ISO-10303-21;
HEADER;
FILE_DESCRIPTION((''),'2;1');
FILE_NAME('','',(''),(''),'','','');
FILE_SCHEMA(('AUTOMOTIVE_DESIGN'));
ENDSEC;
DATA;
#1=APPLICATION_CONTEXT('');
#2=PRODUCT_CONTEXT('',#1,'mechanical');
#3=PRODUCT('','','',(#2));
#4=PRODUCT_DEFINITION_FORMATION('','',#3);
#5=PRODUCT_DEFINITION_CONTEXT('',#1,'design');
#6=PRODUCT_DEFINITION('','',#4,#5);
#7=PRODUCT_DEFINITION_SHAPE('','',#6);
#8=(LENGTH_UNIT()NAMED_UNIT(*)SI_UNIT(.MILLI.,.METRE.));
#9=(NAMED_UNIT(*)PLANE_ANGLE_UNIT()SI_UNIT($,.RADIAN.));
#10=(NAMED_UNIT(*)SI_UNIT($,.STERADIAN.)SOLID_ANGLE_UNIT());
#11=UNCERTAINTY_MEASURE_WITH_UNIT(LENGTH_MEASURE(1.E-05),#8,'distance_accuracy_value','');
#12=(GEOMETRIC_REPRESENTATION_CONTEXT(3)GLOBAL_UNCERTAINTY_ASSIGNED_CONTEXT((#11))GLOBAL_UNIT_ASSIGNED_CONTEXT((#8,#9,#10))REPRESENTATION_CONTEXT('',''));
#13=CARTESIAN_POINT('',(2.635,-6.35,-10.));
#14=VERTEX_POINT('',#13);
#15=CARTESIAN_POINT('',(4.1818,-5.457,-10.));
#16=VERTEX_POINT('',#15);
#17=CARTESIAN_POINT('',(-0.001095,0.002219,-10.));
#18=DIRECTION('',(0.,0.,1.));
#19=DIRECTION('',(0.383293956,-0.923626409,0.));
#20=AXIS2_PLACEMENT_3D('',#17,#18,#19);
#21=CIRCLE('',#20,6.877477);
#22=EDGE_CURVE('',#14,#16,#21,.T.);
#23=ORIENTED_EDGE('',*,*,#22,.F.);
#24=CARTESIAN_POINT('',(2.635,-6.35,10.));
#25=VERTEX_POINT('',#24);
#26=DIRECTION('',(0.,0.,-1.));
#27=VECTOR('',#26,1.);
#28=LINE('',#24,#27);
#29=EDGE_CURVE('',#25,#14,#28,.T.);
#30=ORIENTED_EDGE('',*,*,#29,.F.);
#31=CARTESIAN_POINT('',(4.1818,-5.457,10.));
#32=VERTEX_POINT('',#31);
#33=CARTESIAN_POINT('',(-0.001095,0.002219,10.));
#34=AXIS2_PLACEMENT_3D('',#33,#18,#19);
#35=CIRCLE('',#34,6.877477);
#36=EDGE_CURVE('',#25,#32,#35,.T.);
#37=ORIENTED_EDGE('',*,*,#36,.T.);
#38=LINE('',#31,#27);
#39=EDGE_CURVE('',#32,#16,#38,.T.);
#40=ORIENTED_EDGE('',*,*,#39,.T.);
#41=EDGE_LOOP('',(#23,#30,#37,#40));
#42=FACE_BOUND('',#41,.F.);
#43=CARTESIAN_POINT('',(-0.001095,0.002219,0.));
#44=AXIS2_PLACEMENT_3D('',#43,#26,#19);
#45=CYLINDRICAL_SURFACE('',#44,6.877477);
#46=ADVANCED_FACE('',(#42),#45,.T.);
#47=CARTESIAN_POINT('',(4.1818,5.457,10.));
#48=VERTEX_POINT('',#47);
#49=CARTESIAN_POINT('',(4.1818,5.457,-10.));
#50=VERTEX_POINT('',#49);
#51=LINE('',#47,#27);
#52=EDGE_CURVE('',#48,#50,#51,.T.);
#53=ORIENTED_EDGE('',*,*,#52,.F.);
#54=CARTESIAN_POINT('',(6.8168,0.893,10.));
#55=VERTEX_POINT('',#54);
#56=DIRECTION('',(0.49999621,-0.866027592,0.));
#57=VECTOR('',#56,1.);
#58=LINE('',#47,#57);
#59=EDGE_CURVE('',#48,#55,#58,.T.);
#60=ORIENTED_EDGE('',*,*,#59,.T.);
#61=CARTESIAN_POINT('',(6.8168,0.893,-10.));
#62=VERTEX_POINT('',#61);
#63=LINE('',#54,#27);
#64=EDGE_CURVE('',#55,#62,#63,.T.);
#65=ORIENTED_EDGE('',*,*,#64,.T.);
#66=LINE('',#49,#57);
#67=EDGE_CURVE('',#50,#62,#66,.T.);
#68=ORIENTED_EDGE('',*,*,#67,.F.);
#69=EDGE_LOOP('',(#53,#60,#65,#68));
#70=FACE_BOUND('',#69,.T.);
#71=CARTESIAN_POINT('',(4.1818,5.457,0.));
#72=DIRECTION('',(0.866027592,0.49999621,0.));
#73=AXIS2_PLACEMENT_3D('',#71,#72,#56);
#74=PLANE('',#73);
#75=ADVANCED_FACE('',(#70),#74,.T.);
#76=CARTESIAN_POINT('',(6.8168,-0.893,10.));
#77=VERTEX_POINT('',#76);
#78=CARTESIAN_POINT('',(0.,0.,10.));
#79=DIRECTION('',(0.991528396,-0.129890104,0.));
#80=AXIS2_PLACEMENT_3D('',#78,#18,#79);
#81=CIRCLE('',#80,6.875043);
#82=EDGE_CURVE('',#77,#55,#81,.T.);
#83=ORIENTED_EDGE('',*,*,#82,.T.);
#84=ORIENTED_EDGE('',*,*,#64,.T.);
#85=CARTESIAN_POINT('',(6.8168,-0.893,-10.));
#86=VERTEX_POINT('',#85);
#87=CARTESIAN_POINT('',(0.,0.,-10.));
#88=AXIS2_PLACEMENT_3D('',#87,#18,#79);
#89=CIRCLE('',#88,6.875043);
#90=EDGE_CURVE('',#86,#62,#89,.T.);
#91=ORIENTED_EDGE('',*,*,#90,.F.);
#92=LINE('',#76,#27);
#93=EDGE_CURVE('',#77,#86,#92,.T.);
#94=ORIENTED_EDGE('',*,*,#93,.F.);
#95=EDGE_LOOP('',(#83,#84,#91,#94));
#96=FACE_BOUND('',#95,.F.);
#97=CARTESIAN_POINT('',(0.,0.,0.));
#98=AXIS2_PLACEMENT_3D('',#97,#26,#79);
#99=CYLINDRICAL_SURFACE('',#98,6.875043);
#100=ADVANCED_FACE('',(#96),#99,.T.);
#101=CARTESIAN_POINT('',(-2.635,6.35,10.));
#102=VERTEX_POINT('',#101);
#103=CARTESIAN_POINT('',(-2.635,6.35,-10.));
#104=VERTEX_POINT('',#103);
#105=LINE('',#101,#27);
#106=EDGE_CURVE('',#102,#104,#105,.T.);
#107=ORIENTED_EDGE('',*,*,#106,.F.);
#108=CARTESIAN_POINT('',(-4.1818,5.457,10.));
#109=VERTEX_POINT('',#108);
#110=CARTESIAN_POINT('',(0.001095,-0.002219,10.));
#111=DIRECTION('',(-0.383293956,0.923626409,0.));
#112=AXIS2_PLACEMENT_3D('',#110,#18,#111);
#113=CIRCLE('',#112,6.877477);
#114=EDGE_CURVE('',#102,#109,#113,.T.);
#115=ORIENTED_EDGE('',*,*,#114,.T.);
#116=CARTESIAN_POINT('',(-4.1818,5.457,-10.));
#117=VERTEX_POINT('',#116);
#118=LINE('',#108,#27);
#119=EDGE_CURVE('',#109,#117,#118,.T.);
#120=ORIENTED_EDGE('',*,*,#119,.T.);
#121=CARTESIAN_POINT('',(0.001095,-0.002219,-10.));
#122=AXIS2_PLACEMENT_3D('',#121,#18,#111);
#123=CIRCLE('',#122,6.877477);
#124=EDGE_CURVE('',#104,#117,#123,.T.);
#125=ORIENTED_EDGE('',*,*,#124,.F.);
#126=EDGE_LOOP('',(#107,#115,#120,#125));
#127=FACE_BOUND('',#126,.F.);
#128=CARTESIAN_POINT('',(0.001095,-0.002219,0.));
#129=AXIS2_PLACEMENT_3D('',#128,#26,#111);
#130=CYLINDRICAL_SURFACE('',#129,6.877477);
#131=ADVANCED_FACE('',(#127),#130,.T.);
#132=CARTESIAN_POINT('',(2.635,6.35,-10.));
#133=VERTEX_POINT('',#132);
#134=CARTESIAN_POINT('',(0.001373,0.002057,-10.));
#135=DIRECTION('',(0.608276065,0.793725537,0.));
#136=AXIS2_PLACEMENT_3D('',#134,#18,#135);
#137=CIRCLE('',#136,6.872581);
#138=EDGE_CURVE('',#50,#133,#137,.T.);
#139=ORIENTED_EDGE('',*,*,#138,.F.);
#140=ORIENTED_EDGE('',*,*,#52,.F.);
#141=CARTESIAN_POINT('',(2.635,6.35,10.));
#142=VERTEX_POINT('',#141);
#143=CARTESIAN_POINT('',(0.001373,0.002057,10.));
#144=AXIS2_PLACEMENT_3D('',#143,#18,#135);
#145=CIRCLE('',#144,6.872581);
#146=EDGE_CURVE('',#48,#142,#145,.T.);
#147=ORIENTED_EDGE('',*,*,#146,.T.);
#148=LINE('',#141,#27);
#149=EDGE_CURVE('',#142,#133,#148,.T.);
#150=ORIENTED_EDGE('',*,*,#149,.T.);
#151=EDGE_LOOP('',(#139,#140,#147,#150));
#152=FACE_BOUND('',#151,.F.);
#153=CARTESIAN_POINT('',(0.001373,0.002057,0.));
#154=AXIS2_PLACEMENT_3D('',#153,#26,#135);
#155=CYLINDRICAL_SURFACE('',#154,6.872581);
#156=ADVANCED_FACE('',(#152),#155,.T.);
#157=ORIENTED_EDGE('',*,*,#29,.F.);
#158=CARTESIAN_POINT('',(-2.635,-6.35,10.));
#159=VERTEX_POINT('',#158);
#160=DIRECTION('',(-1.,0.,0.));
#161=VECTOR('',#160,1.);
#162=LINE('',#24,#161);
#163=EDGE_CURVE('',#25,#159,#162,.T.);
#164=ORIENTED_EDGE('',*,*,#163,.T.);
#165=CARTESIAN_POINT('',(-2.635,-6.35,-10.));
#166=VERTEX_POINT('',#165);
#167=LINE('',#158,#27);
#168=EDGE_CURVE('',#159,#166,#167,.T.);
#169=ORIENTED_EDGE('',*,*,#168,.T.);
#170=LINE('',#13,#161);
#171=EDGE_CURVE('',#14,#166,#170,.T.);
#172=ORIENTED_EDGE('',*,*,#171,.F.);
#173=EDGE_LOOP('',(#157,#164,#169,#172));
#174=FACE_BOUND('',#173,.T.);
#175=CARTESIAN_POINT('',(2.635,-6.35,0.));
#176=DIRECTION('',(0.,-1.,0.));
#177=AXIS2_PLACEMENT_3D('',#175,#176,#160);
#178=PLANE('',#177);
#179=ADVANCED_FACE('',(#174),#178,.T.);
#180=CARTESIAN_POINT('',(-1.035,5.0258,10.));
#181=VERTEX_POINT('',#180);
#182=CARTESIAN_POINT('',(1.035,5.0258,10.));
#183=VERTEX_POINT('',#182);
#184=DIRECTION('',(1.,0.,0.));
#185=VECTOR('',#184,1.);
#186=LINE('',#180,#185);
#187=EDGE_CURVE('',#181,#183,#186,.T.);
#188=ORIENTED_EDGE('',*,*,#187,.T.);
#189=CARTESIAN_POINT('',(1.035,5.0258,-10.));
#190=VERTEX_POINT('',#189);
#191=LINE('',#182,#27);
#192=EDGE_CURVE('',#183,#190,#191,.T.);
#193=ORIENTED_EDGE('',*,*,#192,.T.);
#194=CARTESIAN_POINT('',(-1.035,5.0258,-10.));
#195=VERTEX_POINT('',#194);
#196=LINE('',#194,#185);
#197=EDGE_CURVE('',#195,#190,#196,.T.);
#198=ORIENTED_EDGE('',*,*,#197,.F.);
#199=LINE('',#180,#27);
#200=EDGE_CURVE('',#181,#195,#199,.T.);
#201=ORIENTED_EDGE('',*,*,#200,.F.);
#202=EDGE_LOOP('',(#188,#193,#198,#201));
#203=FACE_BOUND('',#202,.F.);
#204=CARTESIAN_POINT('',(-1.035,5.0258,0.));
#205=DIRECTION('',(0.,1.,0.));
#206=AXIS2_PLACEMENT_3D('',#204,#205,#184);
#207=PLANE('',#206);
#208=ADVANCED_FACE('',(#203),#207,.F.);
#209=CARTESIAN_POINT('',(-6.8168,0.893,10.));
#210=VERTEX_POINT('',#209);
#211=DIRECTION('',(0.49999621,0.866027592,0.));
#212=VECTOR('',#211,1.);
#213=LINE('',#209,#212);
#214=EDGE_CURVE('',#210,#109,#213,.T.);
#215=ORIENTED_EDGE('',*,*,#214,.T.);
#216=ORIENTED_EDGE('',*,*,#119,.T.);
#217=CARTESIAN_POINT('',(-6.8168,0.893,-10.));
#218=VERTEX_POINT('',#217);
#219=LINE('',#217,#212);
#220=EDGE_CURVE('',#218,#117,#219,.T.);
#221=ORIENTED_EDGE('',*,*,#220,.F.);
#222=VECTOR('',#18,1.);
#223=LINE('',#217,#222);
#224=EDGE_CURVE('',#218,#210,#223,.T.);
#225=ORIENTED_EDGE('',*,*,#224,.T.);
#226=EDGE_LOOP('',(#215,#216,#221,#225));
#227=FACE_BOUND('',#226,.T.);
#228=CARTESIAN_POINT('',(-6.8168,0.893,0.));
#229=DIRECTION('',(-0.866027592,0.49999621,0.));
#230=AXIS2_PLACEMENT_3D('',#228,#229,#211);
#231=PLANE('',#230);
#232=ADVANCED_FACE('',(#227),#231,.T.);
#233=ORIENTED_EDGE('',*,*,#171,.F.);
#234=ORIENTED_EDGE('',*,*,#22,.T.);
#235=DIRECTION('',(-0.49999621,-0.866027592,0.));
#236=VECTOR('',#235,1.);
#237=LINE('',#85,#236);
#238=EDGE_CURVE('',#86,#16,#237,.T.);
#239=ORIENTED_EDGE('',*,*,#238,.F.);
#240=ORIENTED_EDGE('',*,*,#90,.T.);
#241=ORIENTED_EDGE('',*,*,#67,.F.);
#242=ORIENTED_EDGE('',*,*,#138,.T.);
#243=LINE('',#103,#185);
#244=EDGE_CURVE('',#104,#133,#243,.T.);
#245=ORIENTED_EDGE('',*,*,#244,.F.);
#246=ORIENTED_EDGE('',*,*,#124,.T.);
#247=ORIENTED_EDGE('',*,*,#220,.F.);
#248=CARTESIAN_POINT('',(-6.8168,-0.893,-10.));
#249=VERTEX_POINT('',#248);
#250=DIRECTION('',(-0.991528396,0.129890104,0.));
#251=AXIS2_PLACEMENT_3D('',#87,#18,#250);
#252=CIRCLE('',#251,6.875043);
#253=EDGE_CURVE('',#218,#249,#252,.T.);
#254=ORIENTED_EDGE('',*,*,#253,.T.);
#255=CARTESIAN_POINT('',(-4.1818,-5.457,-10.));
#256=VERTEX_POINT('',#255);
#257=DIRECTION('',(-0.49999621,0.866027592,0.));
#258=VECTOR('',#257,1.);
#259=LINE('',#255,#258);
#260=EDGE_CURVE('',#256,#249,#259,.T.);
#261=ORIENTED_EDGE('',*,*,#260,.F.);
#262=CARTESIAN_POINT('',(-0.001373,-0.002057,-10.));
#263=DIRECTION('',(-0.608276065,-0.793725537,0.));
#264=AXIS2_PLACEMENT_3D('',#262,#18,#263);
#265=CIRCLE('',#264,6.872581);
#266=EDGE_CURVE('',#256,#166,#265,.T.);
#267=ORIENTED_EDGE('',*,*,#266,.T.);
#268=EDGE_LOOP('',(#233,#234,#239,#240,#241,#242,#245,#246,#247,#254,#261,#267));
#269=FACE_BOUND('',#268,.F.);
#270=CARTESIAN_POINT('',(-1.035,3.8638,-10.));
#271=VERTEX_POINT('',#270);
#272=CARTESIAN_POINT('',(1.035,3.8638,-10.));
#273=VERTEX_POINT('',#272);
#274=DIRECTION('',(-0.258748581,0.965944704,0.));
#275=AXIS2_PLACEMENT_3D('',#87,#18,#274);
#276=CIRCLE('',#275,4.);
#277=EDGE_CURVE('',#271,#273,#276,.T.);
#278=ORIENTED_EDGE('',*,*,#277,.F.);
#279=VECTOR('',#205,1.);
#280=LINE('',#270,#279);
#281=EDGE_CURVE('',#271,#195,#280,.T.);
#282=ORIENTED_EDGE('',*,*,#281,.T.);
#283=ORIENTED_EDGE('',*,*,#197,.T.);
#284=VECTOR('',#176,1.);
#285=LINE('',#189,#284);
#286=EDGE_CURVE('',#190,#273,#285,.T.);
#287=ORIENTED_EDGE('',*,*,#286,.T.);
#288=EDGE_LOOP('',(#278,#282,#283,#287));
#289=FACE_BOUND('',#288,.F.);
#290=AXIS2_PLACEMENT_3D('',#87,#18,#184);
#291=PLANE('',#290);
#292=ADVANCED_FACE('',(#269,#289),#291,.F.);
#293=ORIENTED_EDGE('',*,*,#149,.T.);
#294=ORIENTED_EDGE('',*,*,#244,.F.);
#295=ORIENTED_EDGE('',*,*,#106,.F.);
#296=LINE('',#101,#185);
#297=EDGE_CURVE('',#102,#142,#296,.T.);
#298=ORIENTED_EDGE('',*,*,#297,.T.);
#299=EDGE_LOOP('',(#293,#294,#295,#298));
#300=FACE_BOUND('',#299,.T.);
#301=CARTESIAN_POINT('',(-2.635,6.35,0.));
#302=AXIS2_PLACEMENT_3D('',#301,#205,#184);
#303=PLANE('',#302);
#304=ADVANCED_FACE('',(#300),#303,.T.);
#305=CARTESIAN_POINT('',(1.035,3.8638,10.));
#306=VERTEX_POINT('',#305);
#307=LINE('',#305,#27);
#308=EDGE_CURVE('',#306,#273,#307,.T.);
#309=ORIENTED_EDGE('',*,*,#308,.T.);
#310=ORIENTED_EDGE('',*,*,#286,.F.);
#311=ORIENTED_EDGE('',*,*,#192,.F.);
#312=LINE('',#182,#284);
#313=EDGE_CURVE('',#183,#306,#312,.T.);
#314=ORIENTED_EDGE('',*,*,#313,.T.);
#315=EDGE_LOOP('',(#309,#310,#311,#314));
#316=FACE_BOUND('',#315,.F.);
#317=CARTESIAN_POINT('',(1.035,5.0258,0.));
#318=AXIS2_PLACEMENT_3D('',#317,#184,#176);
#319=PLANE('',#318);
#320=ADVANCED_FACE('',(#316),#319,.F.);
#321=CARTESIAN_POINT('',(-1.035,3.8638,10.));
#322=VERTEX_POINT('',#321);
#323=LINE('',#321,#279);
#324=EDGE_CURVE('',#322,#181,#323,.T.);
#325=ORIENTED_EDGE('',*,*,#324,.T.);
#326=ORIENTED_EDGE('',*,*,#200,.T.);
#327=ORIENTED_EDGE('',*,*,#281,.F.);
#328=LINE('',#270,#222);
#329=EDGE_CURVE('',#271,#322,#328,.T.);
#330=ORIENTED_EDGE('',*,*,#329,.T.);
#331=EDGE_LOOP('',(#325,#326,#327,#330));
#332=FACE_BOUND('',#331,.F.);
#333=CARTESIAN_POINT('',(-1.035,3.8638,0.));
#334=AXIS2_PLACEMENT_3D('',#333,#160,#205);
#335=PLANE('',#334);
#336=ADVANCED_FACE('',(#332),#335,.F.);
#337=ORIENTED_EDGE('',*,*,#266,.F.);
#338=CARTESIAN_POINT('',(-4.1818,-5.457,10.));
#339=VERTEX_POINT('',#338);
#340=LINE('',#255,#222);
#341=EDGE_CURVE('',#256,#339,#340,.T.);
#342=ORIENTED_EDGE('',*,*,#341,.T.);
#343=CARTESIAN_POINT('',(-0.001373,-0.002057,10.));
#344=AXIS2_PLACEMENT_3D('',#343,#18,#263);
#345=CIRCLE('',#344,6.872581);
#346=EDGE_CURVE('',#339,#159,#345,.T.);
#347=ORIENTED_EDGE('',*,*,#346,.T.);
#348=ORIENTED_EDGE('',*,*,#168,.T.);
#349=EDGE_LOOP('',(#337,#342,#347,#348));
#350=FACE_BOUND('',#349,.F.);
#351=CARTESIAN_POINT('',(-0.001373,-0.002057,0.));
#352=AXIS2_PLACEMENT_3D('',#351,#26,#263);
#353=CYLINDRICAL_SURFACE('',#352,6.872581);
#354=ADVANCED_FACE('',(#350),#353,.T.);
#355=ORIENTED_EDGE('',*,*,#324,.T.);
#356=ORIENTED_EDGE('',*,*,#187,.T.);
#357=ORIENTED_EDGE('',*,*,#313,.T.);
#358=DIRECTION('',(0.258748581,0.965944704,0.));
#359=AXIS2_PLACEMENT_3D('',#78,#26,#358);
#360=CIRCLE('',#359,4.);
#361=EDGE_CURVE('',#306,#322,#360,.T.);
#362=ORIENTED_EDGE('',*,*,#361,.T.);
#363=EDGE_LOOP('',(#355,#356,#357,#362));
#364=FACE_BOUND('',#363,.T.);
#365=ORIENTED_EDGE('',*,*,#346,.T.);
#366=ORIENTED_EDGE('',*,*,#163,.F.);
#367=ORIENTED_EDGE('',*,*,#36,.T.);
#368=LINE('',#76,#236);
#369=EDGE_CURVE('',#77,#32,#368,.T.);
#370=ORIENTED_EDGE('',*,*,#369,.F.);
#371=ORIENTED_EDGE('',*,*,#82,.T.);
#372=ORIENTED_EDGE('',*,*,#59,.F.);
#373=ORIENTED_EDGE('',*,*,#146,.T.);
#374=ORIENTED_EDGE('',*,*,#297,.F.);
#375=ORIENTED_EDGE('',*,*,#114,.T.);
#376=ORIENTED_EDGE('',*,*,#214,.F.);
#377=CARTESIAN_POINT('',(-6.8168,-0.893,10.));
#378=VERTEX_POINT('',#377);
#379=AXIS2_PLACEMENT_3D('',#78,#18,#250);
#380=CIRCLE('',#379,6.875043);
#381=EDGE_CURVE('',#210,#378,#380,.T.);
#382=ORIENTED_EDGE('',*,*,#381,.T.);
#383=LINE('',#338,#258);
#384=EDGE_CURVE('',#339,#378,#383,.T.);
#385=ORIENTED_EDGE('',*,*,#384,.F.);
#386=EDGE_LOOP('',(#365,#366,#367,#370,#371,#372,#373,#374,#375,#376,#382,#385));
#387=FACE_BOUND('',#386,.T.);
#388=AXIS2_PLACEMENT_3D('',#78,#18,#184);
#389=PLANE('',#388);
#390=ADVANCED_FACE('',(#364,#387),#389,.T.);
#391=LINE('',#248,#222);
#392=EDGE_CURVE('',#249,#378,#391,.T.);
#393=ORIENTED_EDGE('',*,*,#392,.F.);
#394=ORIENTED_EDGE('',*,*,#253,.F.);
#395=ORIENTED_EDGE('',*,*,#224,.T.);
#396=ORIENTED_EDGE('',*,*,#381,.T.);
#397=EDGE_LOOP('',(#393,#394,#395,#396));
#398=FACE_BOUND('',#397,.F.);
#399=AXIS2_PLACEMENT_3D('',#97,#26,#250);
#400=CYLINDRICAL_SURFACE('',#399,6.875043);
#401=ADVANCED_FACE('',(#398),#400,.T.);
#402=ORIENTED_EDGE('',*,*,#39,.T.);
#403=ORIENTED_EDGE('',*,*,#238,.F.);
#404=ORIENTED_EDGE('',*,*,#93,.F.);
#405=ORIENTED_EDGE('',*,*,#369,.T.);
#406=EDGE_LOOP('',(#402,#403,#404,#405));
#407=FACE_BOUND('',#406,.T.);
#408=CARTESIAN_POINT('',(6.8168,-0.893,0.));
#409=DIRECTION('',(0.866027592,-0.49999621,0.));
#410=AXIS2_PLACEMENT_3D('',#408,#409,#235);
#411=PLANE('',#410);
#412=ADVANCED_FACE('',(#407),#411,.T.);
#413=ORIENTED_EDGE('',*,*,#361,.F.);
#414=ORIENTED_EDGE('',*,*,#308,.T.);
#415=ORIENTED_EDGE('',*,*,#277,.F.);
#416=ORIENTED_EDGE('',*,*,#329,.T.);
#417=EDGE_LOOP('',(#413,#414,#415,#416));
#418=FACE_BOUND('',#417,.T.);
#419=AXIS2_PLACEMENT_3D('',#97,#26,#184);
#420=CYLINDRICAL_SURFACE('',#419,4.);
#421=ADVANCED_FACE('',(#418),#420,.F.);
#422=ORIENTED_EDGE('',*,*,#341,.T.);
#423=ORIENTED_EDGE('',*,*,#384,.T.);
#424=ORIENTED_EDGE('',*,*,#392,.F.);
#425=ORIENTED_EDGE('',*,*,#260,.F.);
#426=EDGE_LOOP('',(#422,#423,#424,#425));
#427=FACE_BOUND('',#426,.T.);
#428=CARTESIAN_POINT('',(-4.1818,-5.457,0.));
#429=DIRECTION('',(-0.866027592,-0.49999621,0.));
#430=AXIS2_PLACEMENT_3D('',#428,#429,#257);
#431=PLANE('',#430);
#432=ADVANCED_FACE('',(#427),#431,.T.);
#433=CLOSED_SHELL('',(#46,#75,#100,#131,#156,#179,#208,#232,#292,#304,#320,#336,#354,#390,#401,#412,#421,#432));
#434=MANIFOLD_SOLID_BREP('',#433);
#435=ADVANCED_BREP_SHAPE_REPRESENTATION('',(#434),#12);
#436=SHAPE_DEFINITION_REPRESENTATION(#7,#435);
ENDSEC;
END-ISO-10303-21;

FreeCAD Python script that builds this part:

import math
import FreeCAD as App
import Part
import Sketcher

V = App.Vector
Q = App.Units.Quantity

doc = App.newDocument("Part")
body = doc.addObject("PartDesign::Body", "Body")

# Sketch on XY plane
sketch1 = body.newObject("Sketcher::SketchObject", "Sketch")
sketch1.AttachmentSupport = (doc.getObject("XY_Plane"), [""])
sketch1.MapMode = "FlatFace"
sketch1.addGeometry([
    Part.LineSegment(V(-4.1818, 5.457, 0), V(-6.8168, 0.893, 0)),  # 0
    Part.ArcOfCircle(Part.Circle(V(0, 0, 0), V(0, 0, 1), 6.875043), math.radians(172.536758), math.radians(187.463242)),  # 1
    Part.LineSegment(V(-6.8168, -0.893, 0), V(-4.1818, -5.457, 0)),  # 2
    Part.ArcOfCircle(Part.Circle(V(-0.001373, -0.002057, 0), V(0, 0, 1), 6.872581), math.radians(-127.464955), math.radians(-112.532522)),  # 3
    Part.LineSegment(V(-2.635, -6.35, 0), V(2.635, -6.35, 0)),  # 4
    Part.ArcOfCircle(Part.Circle(V(-0.001095, 0.002219, 0), V(0, 0, 1), 6.877477), math.radians(-67.462132), math.radians(-52.54039)),  # 5
    Part.LineSegment(V(4.1818, -5.457, 0), V(6.8168, -0.893, 0)),  # 6
    Part.ArcOfCircle(Part.Circle(V(0, 0, 0), V(0, 0, 1), 6.875043), math.radians(-7.463242), math.radians(7.463242)),  # 7
    Part.LineSegment(V(6.8168, 0.893, 0), V(4.1818, 5.457, 0)),  # 8
    Part.ArcOfCircle(Part.Circle(V(0.001373, 0.002057, 0), V(0, 0, 1), 6.872581), math.radians(52.535045), math.radians(67.467478)),  # 9
    Part.LineSegment(V(2.635, 6.35, 0), V(-2.635, 6.35, 0)),  # 10
    Part.ArcOfCircle(Part.Circle(V(0.001095, -0.002219, 0), V(0, 0, 1), 6.877477), math.radians(112.537868), math.radians(127.45961)),  # 11
    Part.ArcOfCircle(Part.Circle(V(0, 0, 0), V(0, 0, 1), 4), math.radians(104.99582), math.radians(435.00418)),  # 12
    Part.LineSegment(V(-1.035, 3.8638, 0), V(-1.035, 5.0258, 0)),  # 13
    Part.LineSegment(V(-1.035, 5.0258, 0), V(1.035, 5.0258, 0)),  # 14
    Part.LineSegment(V(1.035, 5.0258, 0), V(1.035, 3.8638, 0)),  # 15
], False)
sketch1.addConstraint([
    Sketcher.Constraint("Coincident", 0, 2, 1, 1),
    Sketcher.Constraint("Coincident", 1, 2, 2, 1),
    Sketcher.Constraint("Coincident", 2, 2, 3, 1),
    Sketcher.Constraint("Coincident", 3, 2, 4, 1),
    Sketcher.Constraint("Coincident", 4, 2, 5, 1),
    Sketcher.Constraint("Coincident", 5, 2, 6, 1),
    Sketcher.Constraint("Coincident", 6, 2, 7, 1),
    Sketcher.Constraint("Coincident", 7, 2, 8, 1),
    Sketcher.Constraint("Coincident", 8, 2, 9, 1),
    Sketcher.Constraint("Coincident", 9, 2, 10, 1),
    Sketcher.Constraint("Coincident", 10, 2, 11, 1),
    Sketcher.Constraint("Coincident", 11, 2, 0, 1),
    Sketcher.Constraint("Coincident", 12, 1, 13, 1),
    Sketcher.Constraint("Coincident", 13, 2, 14, 1),
    Sketcher.Constraint("Coincident", 14, 2, 15, 1),
    Sketcher.Constraint("Coincident", 15, 2, 12, 2),
    Sketcher.Constraint("Horizontal", 4),
    Sketcher.Constraint("Horizontal", 10),
    Sketcher.Constraint("Vertical", 13),
    Sketcher.Constraint("Horizontal", 14),
    Sketcher.Constraint("Vertical", 15),
    Sketcher.Constraint("Coincident", 1, 3, -1, 1),
    Sketcher.Constraint("Coincident", 7, 3, -1, 1),
    Sketcher.Constraint("Coincident", 12, 3, -1, 1),
    Sketcher.Constraint("Equal", 1, 7),
    Sketcher.Constraint("Equal", 3, 9),
    Sketcher.Constraint("Equal", 5, 11),
    Sketcher.Constraint("Symmetric", 3, 3, 9, 3, -1, 1),
    Sketcher.Constraint("Symmetric", 5, 3, 11, 3, -1, 1),
    Sketcher.Constraint("Symmetric", 5, 3, 9, 3, -2),
    Sketcher.Constraint("Symmetric", 2, 2, 5, 2, -2),
    Sketcher.Constraint("Symmetric", 4, 2, 9, 2, -1),
    Sketcher.Constraint("Parallel", 0, 6),
    Sketcher.Constraint("Parallel", 2, 8),
    Sketcher.Constraint("Horizontal", 1, 2, 6, 2),
    Sketcher.Constraint("Horizontal", 0, 2, 7, 2),
    Sketcher.Constraint("Horizontal", 12, 1, 15, 2),
    Sketcher.Constraint("Vertical", 0, 2, 1, 2),
    Sketcher.Constraint("Radius", 12, Q("4 mm")),
    Sketcher.Constraint("Radius", 1, Q("6.875 mm")),
    Sketcher.Constraint("DistanceX", 14, 1, 14, 2, Q("2.07 mm")),
    Sketcher.Constraint("DistanceY", 13, 1, 13, 2, Q("1.162 mm")),
    Sketcher.Constraint("Angle", 0, Q("-119.9997 deg")),
    Sketcher.Constraint("DistanceX", 4, 1, 4, 2, Q("5.27 mm")),
    Sketcher.Constraint("Radius", 3, Q("6.8726 mm")),
    Sketcher.Constraint("Radius", 5, Q("6.8775 mm")),
    Sketcher.Constraint("Distance", 0, Q("5.27 mm")),
])
pad1 = body.newObject("PartDesign::Pad", "Pad")
pad1.Profile = sketch1
pad1.Length = 20
pad1.Midplane = True

doc.recompute()
